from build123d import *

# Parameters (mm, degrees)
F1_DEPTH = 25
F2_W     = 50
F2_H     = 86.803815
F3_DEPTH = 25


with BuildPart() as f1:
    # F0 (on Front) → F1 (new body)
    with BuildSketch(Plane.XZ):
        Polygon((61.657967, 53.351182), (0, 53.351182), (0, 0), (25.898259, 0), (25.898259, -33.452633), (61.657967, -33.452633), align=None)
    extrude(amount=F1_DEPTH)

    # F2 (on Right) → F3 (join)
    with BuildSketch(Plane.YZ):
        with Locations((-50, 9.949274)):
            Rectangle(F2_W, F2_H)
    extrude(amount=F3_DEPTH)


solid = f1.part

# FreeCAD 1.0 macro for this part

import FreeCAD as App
import Part
import Sketcher
Q = App.Units.Quantity


def add_polygon(sketch, points):
    """Adds a closed chain of lines whose ends are joined by coincident constraints."""
    first, n = sketch.GeometryCount, len(points)
    for a, b in zip(points, points[1:] + points[:1]):
        sketch.addGeometry(Part.LineSegment(App.Vector(*a, 0), App.Vector(*b, 0)), False)
    for i in range(n):
        sketch.addConstraint(Sketcher.Constraint("Coincident", first + i, 2, first + (i + 1) % n, 1))

doc = App.newDocument("Part")
body = doc.addObject("PartDesign::Body", "Body")

# Sketch on XZ plane
sketch1 = doc.addObject("Sketcher::SketchObject", "Sketch")
body.addObject(sketch1)
sketch1.AttachmentSupport = (doc.XZ_Plane, [""])
sketch1.MapMode = "FlatFace"
add_polygon(sketch1, [(62, 53), (0, 53), (0, 0), (26, 0), (26, -33), (62, -33)])  # lines 0-5
sketch1.addConstraint([
    Sketcher.Constraint("Horizontal", 0),
    Sketcher.Constraint("Vertical", 1),
    Sketcher.Constraint("Horizontal", 2),
    Sketcher.Constraint("Vertical", 3),
    Sketcher.Constraint("Horizontal", 4),
    Sketcher.Constraint("Vertical", 5),
    Sketcher.Constraint("Coincident", 1, 2, -1, 1),
    Sketcher.Constraint("DistanceX", 2, 1, 2, 2, Q("25.898259 mm")),
    Sketcher.Constraint("DistanceX", 4, 1, 4, 2, Q("35.759708 mm")),
    Sketcher.Constraint("DistanceY", 1, 2, 1, 1, Q("53.351182 mm")),
    Sketcher.Constraint("DistanceY", 3, 2, 3, 1, Q("33.452633 mm")),
])
pad1 = doc.addObject("PartDesign::Pad", "Pad")
body.addObject(pad1)
pad1.Profile = sketch1
pad1.Length = 25

# Sketch on YZ plane
sketch2 = doc.addObject("Sketcher::SketchObject", "Sketch001")
body.addObject(sketch2)
sketch2.AttachmentSupport = (doc.YZ_Plane, [""])
sketch2.MapMode = "FlatFace"
add_polygon(sketch2, [(-75, 53), (-75, -33), (-25, -33), (-25, 53)])  # lines 0-3
sketch2.addConstraint([
    Sketcher.Constraint("Vertical", 0),
    Sketcher.Constraint("Horizontal", 1),
    Sketcher.Constraint("Vertical", 2),
    Sketcher.Constraint("Horizontal", 3),
    Sketcher.Constraint("DistanceX", 1, 1, 1, 2, Q("50 mm")),
    Sketcher.Constraint("DistanceX", 0, 2, -1, 1, Q("75 mm")),
    Sketcher.Constraint("DistanceY", 0, 2, 0, 1, Q("86.803815 mm")),
    Sketcher.Constraint("DistanceY", -1, 1, 2, 2, Q("53.351182 mm")),
])
pad2 = doc.addObject("PartDesign::Pad", "Pad001")
body.addObject(pad2)
pad2.Profile = sketch2
pad2.Length = 25

doc.recompute()
